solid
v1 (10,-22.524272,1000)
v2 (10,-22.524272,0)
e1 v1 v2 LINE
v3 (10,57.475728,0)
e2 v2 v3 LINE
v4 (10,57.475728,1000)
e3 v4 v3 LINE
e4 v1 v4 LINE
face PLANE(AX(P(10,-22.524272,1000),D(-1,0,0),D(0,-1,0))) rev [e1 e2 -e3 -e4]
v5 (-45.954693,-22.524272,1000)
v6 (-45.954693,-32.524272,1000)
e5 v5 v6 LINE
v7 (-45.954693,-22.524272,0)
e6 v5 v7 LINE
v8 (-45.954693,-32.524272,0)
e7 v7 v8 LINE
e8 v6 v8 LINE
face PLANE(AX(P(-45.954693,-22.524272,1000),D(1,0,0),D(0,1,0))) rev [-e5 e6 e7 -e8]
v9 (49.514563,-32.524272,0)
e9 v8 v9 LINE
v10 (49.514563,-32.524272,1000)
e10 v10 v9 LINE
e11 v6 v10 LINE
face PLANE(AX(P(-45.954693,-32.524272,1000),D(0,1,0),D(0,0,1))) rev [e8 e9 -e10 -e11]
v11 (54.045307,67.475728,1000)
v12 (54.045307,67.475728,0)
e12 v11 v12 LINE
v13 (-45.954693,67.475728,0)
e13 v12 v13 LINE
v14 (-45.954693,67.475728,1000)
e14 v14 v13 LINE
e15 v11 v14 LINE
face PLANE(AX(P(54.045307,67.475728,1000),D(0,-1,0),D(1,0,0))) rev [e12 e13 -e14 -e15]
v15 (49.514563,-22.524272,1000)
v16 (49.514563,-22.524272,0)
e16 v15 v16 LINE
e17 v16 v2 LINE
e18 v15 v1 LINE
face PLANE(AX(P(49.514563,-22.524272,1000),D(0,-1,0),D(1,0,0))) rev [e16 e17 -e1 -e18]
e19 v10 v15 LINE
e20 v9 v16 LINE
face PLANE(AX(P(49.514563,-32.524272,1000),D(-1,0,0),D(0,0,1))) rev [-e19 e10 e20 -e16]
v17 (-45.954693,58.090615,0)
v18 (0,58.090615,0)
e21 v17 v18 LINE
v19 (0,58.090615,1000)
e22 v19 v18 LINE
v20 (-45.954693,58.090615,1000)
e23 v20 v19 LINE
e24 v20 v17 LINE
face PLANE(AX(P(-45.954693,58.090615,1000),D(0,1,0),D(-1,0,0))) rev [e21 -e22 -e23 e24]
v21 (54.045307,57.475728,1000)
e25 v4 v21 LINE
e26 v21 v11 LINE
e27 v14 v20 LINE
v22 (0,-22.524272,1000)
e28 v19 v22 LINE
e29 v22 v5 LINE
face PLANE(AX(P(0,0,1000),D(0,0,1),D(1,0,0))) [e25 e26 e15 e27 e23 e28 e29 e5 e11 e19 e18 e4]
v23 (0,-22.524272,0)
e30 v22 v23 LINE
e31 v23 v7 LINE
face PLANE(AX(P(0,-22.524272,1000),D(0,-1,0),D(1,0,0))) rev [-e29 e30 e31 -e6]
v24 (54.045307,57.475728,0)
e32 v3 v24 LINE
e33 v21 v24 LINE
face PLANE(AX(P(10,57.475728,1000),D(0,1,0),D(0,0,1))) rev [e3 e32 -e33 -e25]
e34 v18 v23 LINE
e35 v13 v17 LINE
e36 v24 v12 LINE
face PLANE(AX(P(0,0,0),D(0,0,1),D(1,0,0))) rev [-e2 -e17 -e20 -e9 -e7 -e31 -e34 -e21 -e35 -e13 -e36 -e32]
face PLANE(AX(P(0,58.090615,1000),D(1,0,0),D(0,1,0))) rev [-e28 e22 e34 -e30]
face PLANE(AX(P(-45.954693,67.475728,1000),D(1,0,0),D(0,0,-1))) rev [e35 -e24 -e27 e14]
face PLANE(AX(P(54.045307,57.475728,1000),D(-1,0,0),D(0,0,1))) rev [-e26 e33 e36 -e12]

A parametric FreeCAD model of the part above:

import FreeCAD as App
import Part
import Sketcher

doc = App.newDocument("Part")
body = doc.addObject("PartDesign::Body", "Body")

sketch1 = body.newObject("Sketcher::SketchObject", "Sketch")
sketch1.AttachmentSupport = (doc.getObject("XY_Plane"), [""])
sketch1.MapMode = "FlatFace"
sketch1.addGeometry([
    Part.LineSegment(App.Vector(-46, 67, 0), App.Vector(-46, 58, 0)),
    Part.LineSegment(App.Vector(-46, 58, 0), App.Vector(0, 58, 0)),
    Part.LineSegment(App.Vector(0, 58, 0), App.Vector(0, -23, 0)),
    Part.LineSegment(App.Vector(0, -23, 0), App.Vector(-46, -23, 0)),
    Part.LineSegment(App.Vector(-46, -23, 0), App.Vector(-46, -33, 0)),
    Part.LineSegment(App.Vector(-46, -33, 0), App.Vector(50, -33, 0)),
    Part.LineSegment(App.Vector(50, -33, 0), App.Vector(50, -23, 0)),
    Part.LineSegment(App.Vector(50, -23, 0), App.Vector(10, -23, 0)),
    Part.LineSegment(App.Vector(10, -23, 0), App.Vector(10, 57, 0)),
    Part.LineSegment(App.Vector(10, 57, 0), App.Vector(54, 57, 0)),
    Part.LineSegment(App.Vector(54, 57, 0), App.Vector(54, 67, 0)),
    Part.LineSegment(App.Vector(54, 67, 0), App.Vector(-46, 67, 0)),
], False)
sketch1.addConstraint([
    Sketcher.Constraint("Coincident", 0, 2, 1, 1),
    Sketcher.Constraint("Coincident", 1, 2, 2, 1),
    Sketcher.Constraint("Coincident", 2, 2, 3, 1),
    Sketcher.Constraint("Coincident", 3, 2, 4, 1),
    Sketcher.Constraint("Coincident", 4, 2, 5, 1),
    Sketcher.Constraint("Coincident", 5, 2, 6, 1),
    Sketcher.Constraint("Coincident", 6, 2, 7, 1),
    Sketcher.Constraint("Coincident", 7, 2, 8, 1),
    Sketcher.Constraint("Coincident", 8, 2, 9, 1),
    Sketcher.Constraint("Coincident", 9, 2, 10, 1),
    Sketcher.Constraint("Coincident", 10, 2, 11, 1),
    Sketcher.Constraint("Coincident", 11, 2, 0, 1),
    Sketcher.Constraint("Vertical", 0),
    Sketcher.Constraint("Horizontal", 1),
    Sketcher.Constraint("Vertical", 2),
    Sketcher.Constraint("Horizontal", 3),
    Sketcher.Constraint("Vertical", 4),
    Sketcher.Constraint("Horizontal", 5),
    Sketcher.Constraint("Vertical", 6),
    Sketcher.Constraint("Horizontal", 7),
    Sketcher.Constraint("Vertical", 8),
    Sketcher.Constraint("Horizontal", 9),
    Sketcher.Constraint("Vertical", 10),
    Sketcher.Constraint("Horizontal", 11),
    Sketcher.Constraint("PointOnObject", 1, 2, -2),
    Sketcher.Constraint("Horizontal", 3, 2, 6, 2),
    Sketcher.Constraint("Vertical", 0, 2, 3, 2),
    Sketcher.Constraint("Equal", 6, 10),
    Sketcher.Constraint("DistanceX", 11, 2, 11, 1, 100.0),
    Sketcher.Constraint("DistanceY", 4, 2, 4, 1, 10.0),
    Sketcher.Constraint("DistanceY", 8, 1, 8, 2, 80.0),
    Sketcher.Constraint("DistanceX", -1, 1, 7, 2, 10.0),
    Sketcher.Constraint("DistanceX", 1, 1, 1, 2, 45.954693),
    Sketcher.Constraint("DistanceX", 5, 1, 5, 2, 95.469256),
    Sketcher.Constraint("DistanceY", 0, 2, 0, 1, 9.385113),
    Sketcher.Constraint("DistanceY", 2, 2, -1, 1, 22.524272),
])
pad1 = body.newObject("PartDesign::Pad", "Pad")
pad1.Profile = sketch1
pad1.Length = 1000

doc.recompute()
